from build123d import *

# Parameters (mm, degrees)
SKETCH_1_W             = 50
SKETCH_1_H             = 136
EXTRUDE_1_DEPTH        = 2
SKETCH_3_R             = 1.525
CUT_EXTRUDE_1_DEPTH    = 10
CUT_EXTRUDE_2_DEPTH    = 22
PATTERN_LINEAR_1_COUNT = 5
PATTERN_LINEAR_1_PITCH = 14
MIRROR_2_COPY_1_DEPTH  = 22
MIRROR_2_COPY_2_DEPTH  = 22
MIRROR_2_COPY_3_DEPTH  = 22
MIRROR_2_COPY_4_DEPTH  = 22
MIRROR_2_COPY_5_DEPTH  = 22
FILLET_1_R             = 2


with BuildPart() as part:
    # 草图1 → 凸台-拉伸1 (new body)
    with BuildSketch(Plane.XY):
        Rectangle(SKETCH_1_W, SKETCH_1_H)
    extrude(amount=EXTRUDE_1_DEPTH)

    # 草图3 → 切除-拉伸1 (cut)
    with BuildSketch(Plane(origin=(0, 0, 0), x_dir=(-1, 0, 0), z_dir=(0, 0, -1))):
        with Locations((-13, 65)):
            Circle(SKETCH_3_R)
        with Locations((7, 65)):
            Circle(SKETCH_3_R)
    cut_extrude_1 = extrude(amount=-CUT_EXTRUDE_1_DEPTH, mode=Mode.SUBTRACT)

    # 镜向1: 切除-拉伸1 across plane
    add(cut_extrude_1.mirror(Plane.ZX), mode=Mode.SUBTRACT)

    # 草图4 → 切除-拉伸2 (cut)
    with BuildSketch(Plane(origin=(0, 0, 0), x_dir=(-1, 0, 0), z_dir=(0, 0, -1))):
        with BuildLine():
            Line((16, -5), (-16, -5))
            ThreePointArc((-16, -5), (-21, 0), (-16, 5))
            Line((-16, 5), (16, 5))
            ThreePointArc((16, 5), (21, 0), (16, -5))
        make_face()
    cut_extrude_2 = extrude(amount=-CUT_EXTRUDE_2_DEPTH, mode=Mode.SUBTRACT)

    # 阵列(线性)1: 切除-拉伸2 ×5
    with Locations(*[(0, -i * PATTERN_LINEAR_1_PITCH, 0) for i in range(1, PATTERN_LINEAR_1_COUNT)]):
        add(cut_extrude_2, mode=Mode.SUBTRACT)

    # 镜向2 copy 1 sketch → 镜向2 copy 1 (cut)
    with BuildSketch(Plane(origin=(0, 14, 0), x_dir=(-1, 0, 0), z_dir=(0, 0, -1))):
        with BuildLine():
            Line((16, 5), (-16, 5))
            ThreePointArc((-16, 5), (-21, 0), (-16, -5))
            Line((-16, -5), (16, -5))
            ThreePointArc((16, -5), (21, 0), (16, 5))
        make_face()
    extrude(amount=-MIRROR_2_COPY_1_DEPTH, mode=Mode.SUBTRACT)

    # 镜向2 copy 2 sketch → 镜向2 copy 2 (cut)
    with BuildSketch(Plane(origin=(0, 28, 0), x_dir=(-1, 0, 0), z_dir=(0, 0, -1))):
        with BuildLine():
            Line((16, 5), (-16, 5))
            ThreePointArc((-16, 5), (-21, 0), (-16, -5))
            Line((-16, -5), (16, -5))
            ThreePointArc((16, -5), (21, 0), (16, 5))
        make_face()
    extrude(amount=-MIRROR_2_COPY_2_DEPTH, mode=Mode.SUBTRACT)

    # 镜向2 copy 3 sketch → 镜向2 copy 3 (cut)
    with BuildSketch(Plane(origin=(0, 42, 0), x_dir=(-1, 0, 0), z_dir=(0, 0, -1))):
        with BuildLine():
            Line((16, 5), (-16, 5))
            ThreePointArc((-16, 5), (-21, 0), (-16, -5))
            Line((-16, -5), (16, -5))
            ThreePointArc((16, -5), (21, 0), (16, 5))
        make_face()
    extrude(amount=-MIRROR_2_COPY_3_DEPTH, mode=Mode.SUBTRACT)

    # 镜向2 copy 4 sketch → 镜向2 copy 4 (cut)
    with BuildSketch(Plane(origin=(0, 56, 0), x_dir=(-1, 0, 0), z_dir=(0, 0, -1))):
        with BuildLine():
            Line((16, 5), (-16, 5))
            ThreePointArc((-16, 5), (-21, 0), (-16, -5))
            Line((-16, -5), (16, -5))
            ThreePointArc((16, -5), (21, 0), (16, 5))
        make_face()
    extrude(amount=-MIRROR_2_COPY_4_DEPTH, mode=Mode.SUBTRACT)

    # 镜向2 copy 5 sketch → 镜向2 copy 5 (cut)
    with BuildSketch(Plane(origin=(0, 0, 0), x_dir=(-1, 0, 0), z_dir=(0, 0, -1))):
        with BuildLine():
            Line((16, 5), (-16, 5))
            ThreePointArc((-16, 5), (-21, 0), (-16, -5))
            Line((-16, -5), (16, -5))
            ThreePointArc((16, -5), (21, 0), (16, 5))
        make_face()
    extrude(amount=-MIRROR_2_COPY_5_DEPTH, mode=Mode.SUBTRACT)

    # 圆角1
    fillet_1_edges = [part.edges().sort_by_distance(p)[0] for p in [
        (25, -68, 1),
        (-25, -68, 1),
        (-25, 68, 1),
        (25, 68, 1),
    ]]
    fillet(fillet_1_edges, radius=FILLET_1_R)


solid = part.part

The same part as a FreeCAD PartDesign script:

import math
import FreeCAD as App
import Part
import Sketcher
Q = App.Units.Quantity


def edges_at(feature, points):
    """Names of the edges that pass closest to the given points."""
    edges = feature.Shape.Edges
    near = lambda p: min(range(len(edges)), key=lambda i: edges[i].distToShape(Part.Vertex(*p))[0])
    return sorted({f"Edge{near(p) + 1}" for p in points})


def add_polygon(sketch, points):
    """Adds a closed chain of lines whose ends are joined by coincident constraints."""
    first, n = sketch.GeometryCount, len(points)
    for a, b in zip(points, points[1:] + points[:1]):
        sketch.addGeometry(Part.LineSegment(App.Vector(*a, 0), App.Vector(*b, 0)), False)
    for i in range(n):
        sketch.addConstraint(Sketcher.Constraint("Coincident", first + i, 2, first + (i + 1) % n, 1))

doc = App.newDocument("Part")
body = doc.addObject("PartDesign::Body", "Body")

# Sketch on XY plane
sketch1 = body.newObject("Sketcher::SketchObject", "Sketch")
sketch1.AttachmentSupport = (doc.getObject("XY_Plane"), [""])
sketch1.MapMode = "FlatFace"
add_polygon(sketch1, [(-25, 68), (-25, -68), (25, -68), (25, 68)])  # lines 0-3
sketch1.addConstraint(Sketcher.Constraint("Vertical", 0))
sketch1.addConstraint(Sketcher.Constraint("Horizontal", 1))
sketch1.addConstraint(Sketcher.Constraint("Vertical", 2))
sketch1.addConstraint(Sketcher.Constraint("Horizontal", 3))
sketch1.addConstraint(Sketcher.Constraint("Symmetric", 0, 2, 2, 2, -1, 1))
sketch1.addConstraint(Sketcher.Constraint("DistanceX", 1, 1, 1, 2, Q("50 mm")))
sketch1.addConstraint(Sketcher.Constraint("DistanceY", 0, 2, 0, 1, Q("136 mm")))
pad1 = body.newObject("PartDesign::Pad", "Pad")
pad1.Profile = sketch1
pad1.Length = 2

# Sketch on XY plane
sketch2 = body.newObject("Sketcher::SketchObject", "Sketch001")
sketch2.AttachmentSupport = (doc.getObject("XY_Plane"), [""])
sketch2.MapMode = "FlatFace"
sketch2.addGeometry(Part.Circle(App.Vector(13, 65, 0), App.Vector(0, 0, 1), 1.5), False)
sketch2.addGeometry(Part.Circle(App.Vector(-7, 65, 0), App.Vector(0, 0, 1), 1.5), False)
sketch2.addConstraint(Sketcher.Constraint("Equal", 0, 1))
sketch2.addConstraint(Sketcher.Constraint("Horizontal", 0, 3, 1, 3))
sketch2.addConstraint(Sketcher.Constraint("Diameter", 0, Q("3.05 mm")))
sketch2.addConstraint(Sketcher.Constraint("DistanceX", -1, 1, 0, 3, Q("13 mm")))
sketch2.addConstraint(Sketcher.Constraint("DistanceY", -1, 1, 0, 3, Q("65 mm")))
sketch2.addConstraint(Sketcher.Constraint("DistanceX", 1, 3, -1, 1, Q("7 mm")))
pocket1 = body.newObject("PartDesign::Pocket", "Pocket")
pocket1.Profile = sketch2
pocket1.Length = 10
pocket1.Reversed = True
doc.recompute()

mirrored = body.newObject("PartDesign::Mirrored", "Mirrored")
mirrored.Originals = [pocket1]
mirrored.MirrorPlane = (doc.getObject("XZ_Plane"), [""])
body.Tip = mirrored

# Sketch on XY plane
sketch3 = body.newObject("Sketcher::SketchObject", "Sketch002")
sketch3.AttachmentSupport = (doc.getObject("XY_Plane"), [""])
sketch3.MapMode = "FlatFace"
sketch3.addGeometry(Part.LineSegment(App.Vector(16, -5, 0), App.Vector(-16, -5, 0)), False)
sketch3.addGeometry(Part.ArcOfCircle(Part.Circle(App.Vector(-16, 0, 0), App.Vector(0, 0, 1), 5), math.radians(90), math.radians(270)), False)
sketch3.addGeometry(Part.LineSegment(App.Vector(-16, 5, 0), App.Vector(16, 5, 0)), False)
sketch3.addGeometry(Part.ArcOfCircle(Part.Circle(App.Vector(16, 0, 0), App.Vector(0, 0, 1), 5), math.radians(-90), math.radians(90)), False)
sketch3.addConstraint(Sketcher.Constraint("Tangent", 0, 2, 1, 2))
sketch3.addConstraint(Sketcher.Constraint("Tangent", 1, 1, 2, 1))
sketch3.addConstraint(Sketcher.Constraint("Tangent", 2, 2, 3, 2))
sketch3.addConstraint(Sketcher.Constraint("Tangent", 3, 1, 0, 1))
sketch3.addConstraint(Sketcher.Constraint("Horizontal", 0))
sketch3.addConstraint(Sketcher.Constraint("Horizontal", 2))
sketch3.addConstraint(Sketcher.Constraint("Symmetric", 1, 3, 3, 3, -1, 1))
sketch3.addConstraint(Sketcher.Constraint("Radius", 1, Q("5 mm")))
sketch3.addConstraint(Sketcher.Constraint("DistanceX", 0, 2, 0, 1, Q("32 mm")))
pocket2 = body.newObject("PartDesign::Pocket", "Pocket001")
pocket2.Profile = sketch3
pocket2.Length = 22
pocket2.Reversed = True
doc.recompute()

linearpattern = body.newObject("PartDesign::LinearPattern", "LinearPattern")
linearpattern.Originals = [pocket2]
linearpattern.Direction = (doc.getObject("Y_Axis"), [""])
linearpattern.Mode = "offset"
linearpattern.Offset = 14
linearpattern.Occurrences = 5
linearpattern.Reversed = True
body.Tip = linearpattern

# Sketch on XY plane
sketch4 = body.newObject("Sketcher::SketchObject", "Sketch003")
sketch4.AttachmentSupport = (doc.getObject("XY_Plane"), [""])
sketch4.MapMode = "FlatFace"
sketch4.addGeometry(Part.LineSegment(App.Vector(-16, 19, 0), App.Vector(16, 19, 0)), False)
sketch4.addGeometry(Part.ArcOfCircle(Part.Circle(App.Vector(16, 14, 0), App.Vector(0, 0, 1), 5), math.radians(-90), math.radians(90)), False)
sketch4.addGeometry(Part.LineSegment(App.Vector(16, 9, 0), App.Vector(-16, 9, 0)), False)
sketch4.addGeometry(Part.ArcOfCircle(Part.Circle(App.Vector(-16, 14, 0), App.Vector(0, 0, 1), 5), math.radians(90), math.radians(270)), False)
sketch4.addConstraint(Sketcher.Constraint("Tangent", 0, 2, 1, 2))
sketch4.addConstraint(Sketcher.Constraint("Tangent", 1, 1, 2, 1))
sketch4.addConstraint(Sketcher.Constraint("Tangent", 2, 2, 3, 2))
sketch4.addConstraint(Sketcher.Constraint("Tangent", 3, 1, 0, 1))
sketch4.addConstraint(Sketcher.Constraint("Horizontal", 0))
sketch4.addConstraint(Sketcher.Constraint("Horizontal", 2))
sketch4.addConstraint(Sketcher.Constraint("Radius", 1, Q("5 mm")))
sketch4.addConstraint(Sketcher.Constraint("DistanceX", 0, 1, 0, 2, Q("32 mm")))
sketch4.addConstraint(Sketcher.Constraint("DistanceX", -1, 1, 1, 3, Q("16 mm")))
sketch4.addConstraint(Sketcher.Constraint("DistanceY", -1, 1, 1, 3, Q("14 mm")))
pocket3 = body.newObject("PartDesign::Pocket", "Pocket002")
pocket3.Profile = sketch4
pocket3.Length = 22
pocket3.Reversed = True

# Sketch on XY plane
sketch5 = body.newObject("Sketcher::SketchObject", "Sketch004")
sketch5.AttachmentSupport = (doc.getObject("XY_Plane"), [""])
sketch5.MapMode = "FlatFace"
sketch5.addGeometry(Part.LineSegment(App.Vector(-16, 33, 0), App.Vector(16, 33, 0)), False)
sketch5.addGeometry(Part.ArcOfCircle(Part.Circle(App.Vector(16, 28, 0), App.Vector(0, 0, 1), 5), math.radians(-90), math.radians(90)), False)
sketch5.addGeometry(Part.LineSegment(App.Vector(16, 23, 0), App.Vector(-16, 23, 0)), False)
sketch5.addGeometry(Part.ArcOfCircle(Part.Circle(App.Vector(-16, 28, 0), App.Vector(0, 0, 1), 5), math.radians(90), math.radians(270)), False)
sketch5.addConstraint(Sketcher.Constraint("Tangent", 0, 2, 1, 2))
sketch5.addConstraint(Sketcher.Constraint("Tangent", 1, 1, 2, 1))
sketch5.addConstraint(Sketcher.Constraint("Tangent", 2, 2, 3, 2))
sketch5.addConstraint(Sketcher.Constraint("Tangent", 3, 1, 0, 1))
sketch5.addConstraint(Sketcher.Constraint("Horizontal", 0))
sketch5.addConstraint(Sketcher.Constraint("Horizontal", 2))
sketch5.addConstraint(Sketcher.Constraint("Radius", 1, Q("5 mm")))
sketch5.addConstraint(Sketcher.Constraint("DistanceX", 0, 1, 0, 2, Q("32 mm")))
sketch5.addConstraint(Sketcher.Constraint("DistanceX", -1, 1, 1, 3, Q("16 mm")))
sketch5.addConstraint(Sketcher.Constraint("DistanceY", -1, 1, 1, 3, Q("28 mm")))
pocket4 = body.newObject("PartDesign::Pocket", "Pocket003")
pocket4.Profile = sketch5
pocket4.Length = 22
pocket4.Reversed = True

# Sketch on XY plane
sketch6 = body.newObject("Sketcher::SketchObject", "Sketch005")
sketch6.AttachmentSupport = (doc.getObject("XY_Plane"), [""])
sketch6.MapMode = "FlatFace"
sketch6.addGeometry(Part.LineSegment(App.Vector(-16, 47, 0), App.Vector(16, 47, 0)), False)
sketch6.addGeometry(Part.ArcOfCircle(Part.Circle(App.Vector(16, 42, 0), App.Vector(0, 0, 1), 5), math.radians(-90), math.radians(90)), False)
sketch6.addGeometry(Part.LineSegment(App.Vector(16, 37, 0), App.Vector(-16, 37, 0)), False)
sketch6.addGeometry(Part.ArcOfCircle(Part.Circle(App.Vector(-16, 42, 0), App.Vector(0, 0, 1), 5), math.radians(90), math.radians(270)), False)
sketch6.addConstraint(Sketcher.Constraint("Tangent", 0, 2, 1, 2))
sketch6.addConstraint(Sketcher.Constraint("Tangent", 1, 1, 2, 1))
sketch6.addConstraint(Sketcher.Constraint("Tangent", 2, 2, 3, 2))
sketch6.addConstraint(Sketcher.Constraint("Tangent", 3, 1, 0, 1))
sketch6.addConstraint(Sketcher.Constraint("Horizontal", 0))
sketch6.addConstraint(Sketcher.Constraint("Horizontal", 2))
sketch6.addConstraint(Sketcher.Constraint("Radius", 1, Q("5 mm")))
sketch6.addConstraint(Sketcher.Constraint("DistanceX", 0, 1, 0, 2, Q("32 mm")))
sketch6.addConstraint(Sketcher.Constraint("DistanceX", -1, 1, 1, 3, Q("16 mm")))
sketch6.addConstraint(Sketcher.Constraint("DistanceY", -1, 1, 1, 3, Q("42 mm")))
pocket5 = body.newObject("PartDesign::Pocket", "Pocket004")
pocket5.Profile = sketch6
pocket5.Length = 22
pocket5.Reversed = True

# Sketch on XY plane
sketch7 = body.newObject("Sketcher::SketchObject", "Sketch006")
sketch7.AttachmentSupport = (doc.getObject("XY_Plane"), [""])
sketch7.MapMode = "FlatFace"
sketch7.addGeometry(Part.LineSegment(App.Vector(-16, 61, 0), App.Vector(16, 61, 0)), False)
sketch7.addGeometry(Part.ArcOfCircle(Part.Circle(App.Vector(16, 56, 0), App.Vector(0, 0, 1), 5), math.radians(-90), math.radians(90)), False)
sketch7.addGeometry(Part.LineSegment(App.Vector(16, 51, 0), App.Vector(-16, 51, 0)), False)
sketch7.addGeometry(Part.ArcOfCircle(Part.Circle(App.Vector(-16, 56, 0), App.Vector(0, 0, 1), 5), math.radians(90), math.radians(270)), False)
sketch7.addConstraint(Sketcher.Constraint("Tangent", 0, 2, 1, 2))
sketch7.addConstraint(Sketcher.Constraint("Tangent", 1, 1, 2, 1))
sketch7.addConstraint(Sketcher.Constraint("Tangent", 2, 2, 3, 2))
sketch7.addConstraint(Sketcher.Constraint("Tangent", 3, 1, 0, 1))
sketch7.addConstraint(Sketcher.Constraint("Horizontal", 0))
sketch7.addConstraint(Sketcher.Constraint("Horizontal", 2))
sketch7.addConstraint(Sketcher.Constraint("Radius", 1, Q("5 mm")))
sketch7.addConstraint(Sketcher.Constraint("DistanceX", 0, 1, 0, 2, Q("32 mm")))
sketch7.addConstraint(Sketcher.Constraint("DistanceX", -1, 1, 1, 3, Q("16 mm")))
sketch7.addConstraint(Sketcher.Constraint("DistanceY", -1, 1, 1, 3, Q("56 mm")))
pocket6 = body.newObject("PartDesign::Pocket", "Pocket005")
pocket6.Profile = sketch7
pocket6.Length = 22
pocket6.Reversed = True

# Sketch on XY plane
sketch8 = body.newObject("Sketcher::SketchObject", "Sketch007")
sketch8.AttachmentSupport = (doc.getObject("XY_Plane"), [""])
sketch8.MapMode = "FlatFace"
sketch8.addGeometry(Part.LineSegment(App.Vector(-16, 5, 0), App.Vector(16, 5, 0)), False)
sketch8.addGeometry(Part.ArcOfCircle(Part.Circle(App.Vector(16, 0, 0), App.Vector(0, 0, 1), 5), math.radians(-90), math.radians(90)), False)
sketch8.addGeometry(Part.LineSegment(App.Vector(16, -5, 0), App.Vector(-16, -5, 0)), False)
sketch8.addGeometry(Part.ArcOfCircle(Part.Circle(App.Vector(-16, 0, 0), App.Vector(0, 0, 1), 5), math.radians(90), math.radians(270)), False)
sketch8.addConstraint(Sketcher.Constraint("Tangent", 0, 2, 1, 2))
sketch8.addConstraint(Sketcher.Constraint("Tangent", 1, 1, 2, 1))
sketch8.addConstraint(Sketcher.Constraint("Tangent", 2, 2, 3, 2))
sketch8.addConstraint(Sketcher.Constraint("Tangent", 3, 1, 0, 1))
sketch8.addConstraint(Sketcher.Constraint("Horizontal", 0))
sketch8.addConstraint(Sketcher.Constraint("Horizontal", 2))
sketch8.addConstraint(Sketcher.Constraint("Symmetric", 1, 3, 3, 3, -1, 1))
sketch8.addConstraint(Sketcher.Constraint("Radius", 1, Q("5 mm")))
sketch8.addConstraint(Sketcher.Constraint("DistanceX", 0, 1, 0, 2, Q("32 mm")))
pocket7 = body.newObject("PartDesign::Pocket", "Pocket006")
pocket7.Profile = sketch8
pocket7.Length = 22
pocket7.Reversed = True
doc.recompute()

fillet = body.newObject("PartDesign::Fillet", "Fillet")
fillet.Base = (pocket7, edges_at(pocket7, [
    (25, -68, 1),
    (-25, -68, 1),
    (-25, 68, 1),
    (25, 68, 1),
]))
fillet.Radius = 2

doc.recompute()
